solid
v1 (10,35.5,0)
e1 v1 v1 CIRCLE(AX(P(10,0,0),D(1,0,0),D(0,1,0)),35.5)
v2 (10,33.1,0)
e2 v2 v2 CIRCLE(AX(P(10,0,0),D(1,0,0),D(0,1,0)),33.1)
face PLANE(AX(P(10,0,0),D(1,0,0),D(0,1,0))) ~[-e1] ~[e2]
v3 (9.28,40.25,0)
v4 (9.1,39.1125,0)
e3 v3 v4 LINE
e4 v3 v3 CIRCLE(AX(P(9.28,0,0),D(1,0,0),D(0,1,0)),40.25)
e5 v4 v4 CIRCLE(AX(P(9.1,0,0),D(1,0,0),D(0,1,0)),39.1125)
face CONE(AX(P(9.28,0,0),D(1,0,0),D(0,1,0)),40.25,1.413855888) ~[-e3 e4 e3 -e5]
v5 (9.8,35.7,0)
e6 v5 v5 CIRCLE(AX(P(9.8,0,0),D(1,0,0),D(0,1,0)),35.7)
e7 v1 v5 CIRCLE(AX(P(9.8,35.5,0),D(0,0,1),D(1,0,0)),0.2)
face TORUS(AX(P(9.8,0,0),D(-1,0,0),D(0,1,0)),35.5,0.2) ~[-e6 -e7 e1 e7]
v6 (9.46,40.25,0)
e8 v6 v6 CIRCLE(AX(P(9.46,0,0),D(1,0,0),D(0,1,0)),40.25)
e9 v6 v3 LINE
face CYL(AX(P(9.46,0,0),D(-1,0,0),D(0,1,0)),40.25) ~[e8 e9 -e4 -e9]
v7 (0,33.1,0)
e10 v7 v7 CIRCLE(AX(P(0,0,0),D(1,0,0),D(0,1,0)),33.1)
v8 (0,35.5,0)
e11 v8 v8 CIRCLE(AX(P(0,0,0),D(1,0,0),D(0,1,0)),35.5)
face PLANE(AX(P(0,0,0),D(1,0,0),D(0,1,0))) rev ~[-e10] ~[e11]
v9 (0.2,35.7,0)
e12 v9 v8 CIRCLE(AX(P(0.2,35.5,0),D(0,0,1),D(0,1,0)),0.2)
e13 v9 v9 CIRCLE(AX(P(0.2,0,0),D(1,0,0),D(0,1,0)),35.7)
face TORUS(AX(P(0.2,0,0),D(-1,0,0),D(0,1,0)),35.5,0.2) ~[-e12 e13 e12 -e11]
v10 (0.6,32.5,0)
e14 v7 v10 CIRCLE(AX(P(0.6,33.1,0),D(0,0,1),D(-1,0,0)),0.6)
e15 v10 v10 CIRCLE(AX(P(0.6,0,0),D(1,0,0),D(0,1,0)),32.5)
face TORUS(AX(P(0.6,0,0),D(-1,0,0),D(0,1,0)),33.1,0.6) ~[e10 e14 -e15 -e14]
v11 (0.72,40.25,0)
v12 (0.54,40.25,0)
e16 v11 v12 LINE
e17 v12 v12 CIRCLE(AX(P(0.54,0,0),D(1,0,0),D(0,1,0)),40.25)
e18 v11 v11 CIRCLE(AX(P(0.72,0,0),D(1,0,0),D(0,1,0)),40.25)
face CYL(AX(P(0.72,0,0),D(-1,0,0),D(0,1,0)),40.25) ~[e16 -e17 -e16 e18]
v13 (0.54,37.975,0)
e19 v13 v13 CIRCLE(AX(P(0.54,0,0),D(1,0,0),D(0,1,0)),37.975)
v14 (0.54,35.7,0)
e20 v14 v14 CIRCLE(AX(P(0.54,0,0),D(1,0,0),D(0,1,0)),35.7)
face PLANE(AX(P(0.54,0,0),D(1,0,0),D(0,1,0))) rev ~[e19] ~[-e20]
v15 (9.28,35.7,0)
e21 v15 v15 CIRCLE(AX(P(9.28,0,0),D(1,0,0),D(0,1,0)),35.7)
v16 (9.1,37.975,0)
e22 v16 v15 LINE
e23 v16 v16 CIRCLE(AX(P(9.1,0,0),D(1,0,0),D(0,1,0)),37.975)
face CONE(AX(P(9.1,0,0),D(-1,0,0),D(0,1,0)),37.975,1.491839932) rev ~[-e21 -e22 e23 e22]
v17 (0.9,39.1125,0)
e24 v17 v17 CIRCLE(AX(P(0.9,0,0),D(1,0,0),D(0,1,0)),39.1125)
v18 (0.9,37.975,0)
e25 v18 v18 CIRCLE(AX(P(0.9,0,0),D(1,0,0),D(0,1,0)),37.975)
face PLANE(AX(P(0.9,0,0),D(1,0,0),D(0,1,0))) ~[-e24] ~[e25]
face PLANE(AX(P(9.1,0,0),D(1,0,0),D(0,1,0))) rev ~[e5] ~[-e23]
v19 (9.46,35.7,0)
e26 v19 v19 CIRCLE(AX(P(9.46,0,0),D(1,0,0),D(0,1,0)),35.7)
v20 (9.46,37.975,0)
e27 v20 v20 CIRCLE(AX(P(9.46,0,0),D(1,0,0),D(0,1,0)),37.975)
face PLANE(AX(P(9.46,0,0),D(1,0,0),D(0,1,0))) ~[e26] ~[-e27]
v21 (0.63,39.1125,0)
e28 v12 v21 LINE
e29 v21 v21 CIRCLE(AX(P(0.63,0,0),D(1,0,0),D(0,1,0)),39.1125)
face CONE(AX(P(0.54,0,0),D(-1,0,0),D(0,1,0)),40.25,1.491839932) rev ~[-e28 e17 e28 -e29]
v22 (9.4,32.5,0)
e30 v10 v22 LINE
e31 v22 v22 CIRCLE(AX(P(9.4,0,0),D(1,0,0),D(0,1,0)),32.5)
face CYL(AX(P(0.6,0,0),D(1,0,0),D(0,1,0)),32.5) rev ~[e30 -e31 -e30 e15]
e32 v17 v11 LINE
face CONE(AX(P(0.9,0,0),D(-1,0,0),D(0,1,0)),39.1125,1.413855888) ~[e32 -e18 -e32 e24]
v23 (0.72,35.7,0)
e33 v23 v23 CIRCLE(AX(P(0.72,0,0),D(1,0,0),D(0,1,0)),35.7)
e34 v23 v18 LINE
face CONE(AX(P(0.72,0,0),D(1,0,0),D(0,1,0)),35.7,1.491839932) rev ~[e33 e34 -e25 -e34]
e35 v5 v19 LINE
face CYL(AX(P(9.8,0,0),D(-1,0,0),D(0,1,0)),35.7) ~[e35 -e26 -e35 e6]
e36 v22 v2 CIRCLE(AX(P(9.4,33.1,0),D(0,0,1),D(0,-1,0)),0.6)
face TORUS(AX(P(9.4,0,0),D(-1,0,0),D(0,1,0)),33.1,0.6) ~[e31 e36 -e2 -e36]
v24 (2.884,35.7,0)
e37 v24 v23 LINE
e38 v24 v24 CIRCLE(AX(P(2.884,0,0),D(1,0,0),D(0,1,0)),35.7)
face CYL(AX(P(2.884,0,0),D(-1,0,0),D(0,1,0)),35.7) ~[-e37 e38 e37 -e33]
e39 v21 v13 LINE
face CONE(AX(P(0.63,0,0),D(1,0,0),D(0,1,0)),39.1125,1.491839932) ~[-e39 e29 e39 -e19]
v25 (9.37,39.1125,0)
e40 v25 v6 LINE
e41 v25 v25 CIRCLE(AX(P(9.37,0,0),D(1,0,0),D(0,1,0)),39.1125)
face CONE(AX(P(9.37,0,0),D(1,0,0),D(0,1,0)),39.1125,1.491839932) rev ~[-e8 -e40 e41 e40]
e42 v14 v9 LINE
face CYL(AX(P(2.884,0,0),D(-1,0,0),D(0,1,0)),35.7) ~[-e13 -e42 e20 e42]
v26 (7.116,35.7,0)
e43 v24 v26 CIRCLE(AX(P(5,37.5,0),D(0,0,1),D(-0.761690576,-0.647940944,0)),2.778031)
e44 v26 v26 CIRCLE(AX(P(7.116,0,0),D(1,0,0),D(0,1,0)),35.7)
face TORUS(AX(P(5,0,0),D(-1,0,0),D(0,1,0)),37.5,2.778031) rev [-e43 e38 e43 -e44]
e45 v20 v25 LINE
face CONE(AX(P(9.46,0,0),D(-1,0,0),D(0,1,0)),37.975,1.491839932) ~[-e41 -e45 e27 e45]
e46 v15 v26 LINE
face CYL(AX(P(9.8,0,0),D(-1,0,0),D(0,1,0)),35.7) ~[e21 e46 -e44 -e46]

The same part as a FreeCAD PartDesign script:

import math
import FreeCAD as App
import Part
import Sketcher

doc = App.newDocument("Part")
body = doc.addObject("PartDesign::Body", "Body")

sketch1 = body.newObject("Sketcher::SketchObject", "Sketch")
sketch1.AttachmentSupport = (doc.getObject("XY_Plane"), [""])
sketch1.MapMode = "FlatFace"
sketch1.addGeometry([
    Part.ArcOfCircle(Part.Circle(App.Vector(0.2, 35.5, 0), App.Vector(0, 0, 1), 0.2), math.radians(90), math.radians(180)),
    Part.LineSegment(App.Vector(0, 35.5, 0), App.Vector(0, 33.1, 0)),
    Part.ArcOfCircle(Part.Circle(App.Vector(0.6, 33.1, 0), App.Vector(0, 0, 1), 0.6), math.radians(180), math.radians(270)),
    Part.LineSegment(App.Vector(0.6, 32.5, 0), App.Vector(9.4, 32.5, 0)),
    Part.ArcOfCircle(Part.Circle(App.Vector(9.4, 33.1, 0), App.Vector(0, 0, 1), 0.6), math.radians(-90), math.radians(0)),
    Part.LineSegment(App.Vector(10, 33.1, 0), App.Vector(10, 35.5, 0)),
    Part.ArcOfCircle(Part.Circle(App.Vector(9.8, 35.5, 0), App.Vector(0, 0, 1), 0.2), math.radians(0), math.radians(90)),
    Part.LineSegment(App.Vector(9.8, 35.7, 0), App.Vector(7.12, 35.7, 0)),
    Part.ArcOfCircle(Part.Circle(App.Vector(5, 37.5, 0), App.Vector(0, 0, 1), 2.78), math.radians(-140), math.radians(-40)),
    Part.LineSegment(App.Vector(2.88, 35.7, 0), App.Vector(0.2, 35.7, 0)),
], False)
sketch1.addConstraint([
    Sketcher.Constraint("Tangent", 0, 2, 1, 1),
    Sketcher.Constraint("Tangent", 1, 2, 2, 1),
    Sketcher.Constraint("Tangent", 2, 2, 3, 1),
    Sketcher.Constraint("Tangent", 3, 2, 4, 1),
    Sketcher.Constraint("Tangent", 4, 2, 5, 1),
    Sketcher.Constraint("Tangent", 5, 2, 6, 1),
    Sketcher.Constraint("Tangent", 6, 2, 7, 1),
    Sketcher.Constraint("Coincident", 7, 2, 8, 2),
    Sketcher.Constraint("Coincident", 8, 1, 9, 1),
    Sketcher.Constraint("Tangent", 9, 2, 0, 1),
    Sketcher.Constraint("Vertical", 1),
    Sketcher.Constraint("Horizontal", 3),
    Sketcher.Constraint("Vertical", 5),
    Sketcher.Constraint("Horizontal", 7),
    Sketcher.Constraint("Horizontal", 9),
    Sketcher.Constraint("Equal", 2, 4),
    Sketcher.Constraint("Equal", 0, 6),
    Sketcher.Constraint("PointOnObject", 0, 2, -2),
    Sketcher.Constraint("Horizontal", 0, 3, 6, 3),
    Sketcher.Constraint("Equal", 7, 9),
    Sketcher.Constraint("Radius", 0, 0.2),
    Sketcher.Constraint("Radius", 2, 0.6),
    Sketcher.Constraint("DistanceX", 3, 1, 3, 2, 8.8),
    Sketcher.Constraint("DistanceY", 1, 2, 1, 1, 2.4),
    Sketcher.Constraint("Radius", 8, 2.778),
    Sketcher.Constraint("DistanceY", 0, 3, 8, 3, 2.0),
    Sketcher.Constraint("DistanceY", -1, 1, 0, 3, 35.5),
])
revolution = body.newObject("PartDesign::Revolution", "Revolution")
revolution.Profile = sketch1
revolution.ReferenceAxis = (sketch1, ["H_Axis"])
revolution.Angle = 360

sketch2 = body.newObject("Sketcher::SketchObject", "Sketch001")
sketch2.AttachmentSupport = (doc.getObject("XY_Plane"), [""])
sketch2.MapMode = "FlatFace"
sketch2.addGeometry([
    Part.LineSegment(App.Vector(0.72, 40.25, 0), App.Vector(0.54, 40.25, 0)),
    Part.LineSegment(App.Vector(0.54, 40.25, 0), App.Vector(0.63, 39.11, 0)),
    Part.LineSegment(App.Vector(0.63, 39.11, 0), App.Vector(0.54, 37.98, 0)),
    Part.LineSegment(App.Vector(0.54, 37.98, 0), App.Vector(0.54, 35.7, 0)),
    Part.LineSegment(App.Vector(0.54, 35.7, 0), App.Vector(0.72, 35.7, 0)),
    Part.LineSegment(App.Vector(0.72, 35.7, 0), App.Vector(0.9, 37.98, 0)),
    Part.LineSegment(App.Vector(0.9, 37.98, 0), App.Vector(0.9, 39.11, 0)),
    Part.LineSegment(App.Vector(0.9, 39.11, 0), App.Vector(0.72, 40.25, 0)),
], False)
sketch2.addConstraint([
    Sketcher.Constraint("Coincident", 0, 2, 1, 1),
    Sketcher.Constraint("Coincident", 1, 2, 2, 1),
    Sketcher.Constraint("Coincident", 2, 2, 3, 1),
    Sketcher.Constraint("Coincident", 3, 2, 4, 1),
    Sketcher.Constraint("Coincident", 4, 2, 5, 1),
    Sketcher.Constraint("Coincident", 5, 2, 6, 1),
    Sketcher.Constraint("Coincident", 6, 2, 7, 1),
    Sketcher.Constraint("Coincident", 7, 2, 0, 1),
    Sketcher.Constraint("Horizontal", 0),
    Sketcher.Constraint("Vertical", 3),
    Sketcher.Constraint("Horizontal", 4),
    Sketcher.Constraint("Vertical", 6),
    Sketcher.Constraint("Parallel", 2, 5),
    Sketcher.Constraint("Horizontal", 2, 2, 5, 2),
    Sketcher.Constraint("Horizontal", 1, 2, 6, 2),
    Sketcher.Constraint("Vertical", 0, 2, 2, 2),
    Sketcher.Constraint("Vertical", 4, 2, 7, 2),
    Sketcher.Constraint("Equal", 1, 2),
    Sketcher.Constraint("DistanceX", 0, 2, 0, 1, 0.18),
    Sketcher.Constraint("DistanceY", -1, 1, 3, 2, 35.7),
    Sketcher.Constraint("DistanceX", -1, 1, 5, 2, 0.9),
    Sketcher.Constraint("DistanceY", 3, 2, 3, 1, 2.275),
    Sketcher.Constraint("DistanceX", -1, 1, 0, 2, 0.54),
    Sketcher.Constraint("DistanceY", -1, 1, 0, 2, 40.25),
])
revolution2 = body.newObject("PartDesign::Revolution", "Revolution001")
revolution2.Profile = sketch2
revolution2.ReferenceAxis = (sketch2, ["H_Axis"])
revolution2.Angle = 360

sketch3 = body.newObject("Sketcher::SketchObject", "Sketch002")
sketch3.AttachmentSupport = (doc.getObject("XY_Plane"), [""])
sketch3.MapMode = "FlatFace"
sketch3.addGeometry([
    Part.LineSegment(App.Vector(9.1, 39.11, 0), App.Vector(9.1, 37.98, 0)),
    Part.LineSegment(App.Vector(9.1, 37.98, 0), App.Vector(9.28, 35.7, 0)),
    Part.LineSegment(App.Vector(9.28, 35.7, 0), App.Vector(9.46, 35.7, 0)),
    Part.LineSegment(App.Vector(9.46, 35.7, 0), App.Vector(9.46, 37.98, 0)),
    Part.LineSegment(App.Vector(9.46, 37.98, 0), App.Vector(9.37, 39.11, 0)),
    Part.LineSegment(App.Vector(9.37, 39.11, 0), App.Vector(9.46, 40.25, 0)),
    Part.LineSegment(App.Vector(9.46, 40.25, 0), App.Vector(9.28, 40.25, 0)),
    Part.LineSegment(App.Vector(9.28, 40.25, 0), App.Vector(9.1, 39.11, 0)),
], False)
sketch3.addConstraint([
    Sketcher.Constraint("Coincident", 0, 2, 1, 1),
    Sketcher.Constraint("Coincident", 1, 2, 2, 1),
    Sketcher.Constraint("Coincident", 2, 2, 3, 1),
    Sketcher.Constraint("Coincident", 3, 2, 4, 1),
    Sketcher.Constraint("Coincident", 4, 2, 5, 1),
    Sketcher.Constraint("Coincident", 5, 2, 6, 1),
    Sketcher.Constraint("Coincident", 6, 2, 7, 1),
    Sketcher.Constraint("Coincident", 7, 2, 0, 1),
    Sketcher.Constraint("Vertical", 0),
    Sketcher.Constraint("Horizontal", 2),
    Sketcher.Constraint("Vertical", 3),
    Sketcher.Constraint("Horizontal", 6),
    Sketcher.Constraint("Parallel", 1, 4),
    Sketcher.Constraint("Horizontal", 0, 2, 3, 2),
    Sketcher.Constraint("Horizontal", 4, 2, 7, 2),
    Sketcher.Constraint("Vertical", 3, 2, 5, 2),
    Sketcher.Constraint("Vertical", 1, 2, 6, 2),
    Sketcher.Constraint("Equal", 4, 5),
    Sketcher.Constraint("DistanceX", 2, 1, 2, 2, 0.18),
    Sketcher.Constraint("DistanceX", -1, 1, 0, 2, 9.1),
    Sketcher.Constraint("DistanceY", -1, 1, 1, 2, 35.7),
    Sketcher.Constraint("DistanceY", 3, 1, 3, 2, 2.275),
    Sketcher.Constraint("DistanceX", -1, 1, 1, 2, 9.28),
    Sketcher.Constraint("DistanceX", -1, 1, 4, 2, 9.37),
])
revolution3 = body.newObject("PartDesign::Revolution", "Revolution002")
revolution3.Profile = sketch3
revolution3.ReferenceAxis = (sketch3, ["H_Axis"])
revolution3.Angle = 360

doc.recompute()
